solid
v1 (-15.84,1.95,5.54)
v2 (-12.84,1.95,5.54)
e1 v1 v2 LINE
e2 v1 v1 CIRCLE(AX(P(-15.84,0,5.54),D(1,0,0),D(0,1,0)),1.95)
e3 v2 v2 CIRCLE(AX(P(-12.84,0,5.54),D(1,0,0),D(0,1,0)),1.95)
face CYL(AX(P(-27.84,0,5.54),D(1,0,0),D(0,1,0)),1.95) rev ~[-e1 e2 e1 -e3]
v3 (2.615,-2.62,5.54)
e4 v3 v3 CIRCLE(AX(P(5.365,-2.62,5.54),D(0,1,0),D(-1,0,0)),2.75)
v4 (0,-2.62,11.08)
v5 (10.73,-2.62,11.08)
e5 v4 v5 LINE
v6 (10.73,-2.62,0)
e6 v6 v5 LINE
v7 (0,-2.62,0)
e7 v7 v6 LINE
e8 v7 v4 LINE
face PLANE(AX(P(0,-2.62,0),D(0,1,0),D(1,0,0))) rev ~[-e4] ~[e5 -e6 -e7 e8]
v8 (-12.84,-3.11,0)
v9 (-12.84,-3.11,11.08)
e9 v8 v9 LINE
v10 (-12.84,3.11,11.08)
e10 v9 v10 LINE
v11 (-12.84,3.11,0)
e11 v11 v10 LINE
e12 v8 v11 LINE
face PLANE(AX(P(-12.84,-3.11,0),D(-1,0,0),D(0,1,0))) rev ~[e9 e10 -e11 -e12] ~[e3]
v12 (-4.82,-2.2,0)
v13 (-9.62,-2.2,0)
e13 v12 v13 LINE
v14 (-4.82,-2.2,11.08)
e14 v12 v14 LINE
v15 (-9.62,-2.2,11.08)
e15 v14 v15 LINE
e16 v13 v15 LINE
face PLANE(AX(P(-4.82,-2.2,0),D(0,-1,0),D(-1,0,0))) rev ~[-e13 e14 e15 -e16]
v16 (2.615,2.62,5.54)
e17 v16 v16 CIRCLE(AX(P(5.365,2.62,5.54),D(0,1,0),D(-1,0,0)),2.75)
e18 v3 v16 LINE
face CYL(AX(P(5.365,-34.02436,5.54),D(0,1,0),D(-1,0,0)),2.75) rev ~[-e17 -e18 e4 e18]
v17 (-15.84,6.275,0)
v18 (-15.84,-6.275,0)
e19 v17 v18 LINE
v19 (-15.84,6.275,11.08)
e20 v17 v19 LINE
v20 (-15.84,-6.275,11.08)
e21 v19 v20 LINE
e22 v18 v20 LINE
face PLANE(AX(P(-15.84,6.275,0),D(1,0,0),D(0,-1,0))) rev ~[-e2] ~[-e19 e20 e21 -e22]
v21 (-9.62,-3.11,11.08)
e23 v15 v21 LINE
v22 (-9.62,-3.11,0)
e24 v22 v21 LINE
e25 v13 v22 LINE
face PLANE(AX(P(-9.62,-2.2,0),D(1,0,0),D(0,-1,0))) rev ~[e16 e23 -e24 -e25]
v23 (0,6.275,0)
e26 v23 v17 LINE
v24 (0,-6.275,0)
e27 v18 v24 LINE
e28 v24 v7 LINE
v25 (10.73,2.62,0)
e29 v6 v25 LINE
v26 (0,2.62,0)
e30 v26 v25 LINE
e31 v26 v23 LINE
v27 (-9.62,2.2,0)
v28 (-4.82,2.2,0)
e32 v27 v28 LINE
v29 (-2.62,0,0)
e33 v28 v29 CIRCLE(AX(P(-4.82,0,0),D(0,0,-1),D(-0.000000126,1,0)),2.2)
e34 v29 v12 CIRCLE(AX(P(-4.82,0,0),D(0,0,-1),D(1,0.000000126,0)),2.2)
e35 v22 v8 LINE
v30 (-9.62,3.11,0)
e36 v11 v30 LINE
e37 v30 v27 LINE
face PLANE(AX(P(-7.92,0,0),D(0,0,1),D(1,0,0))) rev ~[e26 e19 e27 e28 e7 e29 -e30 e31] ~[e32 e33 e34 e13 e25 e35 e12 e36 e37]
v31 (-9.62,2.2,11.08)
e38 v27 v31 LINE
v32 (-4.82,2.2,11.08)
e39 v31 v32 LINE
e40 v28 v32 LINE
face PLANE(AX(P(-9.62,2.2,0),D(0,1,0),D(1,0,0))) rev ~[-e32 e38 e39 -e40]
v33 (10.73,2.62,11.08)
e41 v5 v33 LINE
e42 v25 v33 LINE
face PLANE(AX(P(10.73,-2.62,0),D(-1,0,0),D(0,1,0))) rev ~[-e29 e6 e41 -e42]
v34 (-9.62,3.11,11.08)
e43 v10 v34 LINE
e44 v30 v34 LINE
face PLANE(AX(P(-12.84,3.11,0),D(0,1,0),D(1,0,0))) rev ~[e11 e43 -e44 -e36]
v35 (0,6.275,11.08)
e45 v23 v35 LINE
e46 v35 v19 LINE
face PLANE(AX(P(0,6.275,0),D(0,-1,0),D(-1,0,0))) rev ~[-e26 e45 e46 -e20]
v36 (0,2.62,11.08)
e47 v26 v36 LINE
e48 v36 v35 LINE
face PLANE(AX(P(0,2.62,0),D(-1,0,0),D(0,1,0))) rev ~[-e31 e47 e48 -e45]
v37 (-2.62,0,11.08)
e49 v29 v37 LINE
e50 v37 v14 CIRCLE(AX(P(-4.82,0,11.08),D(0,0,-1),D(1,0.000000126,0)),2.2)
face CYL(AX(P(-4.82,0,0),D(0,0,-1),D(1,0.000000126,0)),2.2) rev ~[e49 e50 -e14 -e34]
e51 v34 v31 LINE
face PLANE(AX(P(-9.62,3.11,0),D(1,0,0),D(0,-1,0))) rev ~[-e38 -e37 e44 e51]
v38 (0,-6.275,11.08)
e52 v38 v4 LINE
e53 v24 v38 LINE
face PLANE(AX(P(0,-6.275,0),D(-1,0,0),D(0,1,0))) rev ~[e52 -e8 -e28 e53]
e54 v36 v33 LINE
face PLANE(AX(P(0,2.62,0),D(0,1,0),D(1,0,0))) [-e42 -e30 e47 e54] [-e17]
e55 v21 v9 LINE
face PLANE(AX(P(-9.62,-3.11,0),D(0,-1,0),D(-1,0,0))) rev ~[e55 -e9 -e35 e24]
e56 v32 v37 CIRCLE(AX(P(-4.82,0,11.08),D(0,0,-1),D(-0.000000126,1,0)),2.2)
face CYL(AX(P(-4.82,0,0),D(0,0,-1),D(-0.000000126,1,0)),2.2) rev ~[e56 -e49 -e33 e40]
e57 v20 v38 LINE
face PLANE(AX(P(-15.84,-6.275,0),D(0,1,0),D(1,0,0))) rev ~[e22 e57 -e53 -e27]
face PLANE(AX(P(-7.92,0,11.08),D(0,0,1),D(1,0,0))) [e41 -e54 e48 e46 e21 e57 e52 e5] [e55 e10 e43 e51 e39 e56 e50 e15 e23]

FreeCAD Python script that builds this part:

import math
import FreeCAD as App
import Part
import Sketcher

V = App.Vector

doc = App.newDocument("Part")
body = doc.addObject("PartDesign::Body", "Body")

sketch1 = doc.addObject("Sketcher::SketchObject", "Sketch")
body.addObject(sketch1)
sketch1.AttachmentSupport = (doc.XY_Plane, [""])
sketch1.MapMode = "FlatFace"
sketch1.addGeometry([
    Part.LineSegment(V(0, 6.3, 0), V(-15.8, 6.3, 0)),
    Part.LineSegment(V(-15.8, 6.3, 0), V(-15.8, -6.3, 0)),
    Part.LineSegment(V(-15.8, -6.3, 0), V(0, -6.3, 0)),
    Part.LineSegment(V(0, -6.3, 0), V(0, -2.6, 0)),
    Part.LineSegment(V(0, -2.6, 0), V(10.7, -2.6, 0)),
    Part.LineSegment(V(10.7, -2.6, 0), V(10.7, 2.6, 0)),
    Part.LineSegment(V(10.7, 2.6, 0), V(0, 2.6, 0)),
    Part.LineSegment(V(0, 2.6, 0), V(0, 6.3, 0)),
    Part.LineSegment(V(-9.6, -3.1, 0), V(-12.8, -3.1, 0)),
    Part.LineSegment(V(-12.8, -3.1, 0), V(-12.8, 3.1, 0)),
    Part.LineSegment(V(-12.8, 3.1, 0), V(-9.6, 3.1, 0)),
    Part.LineSegment(V(-9.6, 3.1, 0), V(-9.6, 2.2, 0)),
    Part.LineSegment(V(-9.6, 2.2, 0), V(-4.8, 2.2, 0)),
    Part.ArcOfCircle(Part.Circle(V(-4.8, 0, 0), V(0, 0, 1), 2.2), math.radians(0), math.radians(90)),
    Part.ArcOfCircle(Part.Circle(V(-4.8, 0, 0), V(0, 0, 1), 2.2), math.radians(-90), math.radians(0)),
    Part.LineSegment(V(-4.8, -2.2, 0), V(-9.6, -2.2, 0)),
    Part.LineSegment(V(-9.6, -2.2, 0), V(-9.6, -3.1, 0)),
], False)
sketch1.addConstraint([
    Sketcher.Constraint("Coincident", 0, 2, 1, 1),
    Sketcher.Constraint("Coincident", 1, 2, 2, 1),
    Sketcher.Constraint("Coincident", 2, 2, 3, 1),
    Sketcher.Constraint("Coincident", 3, 2, 4, 1),
    Sketcher.Constraint("Coincident", 4, 2, 5, 1),
    Sketcher.Constraint("Coincident", 5, 2, 6, 1),
    Sketcher.Constraint("Coincident", 6, 2, 7, 1),
    Sketcher.Constraint("Coincident", 7, 2, 0, 1),
    Sketcher.Constraint("Coincident", 8, 2, 9, 1),
    Sketcher.Constraint("Coincident", 9, 2, 10, 1),
    Sketcher.Constraint("Coincident", 10, 2, 11, 1),
    Sketcher.Constraint("Coincident", 11, 2, 12, 1),
    Sketcher.Constraint("Tangent", 12, 2, 13, 2),
    Sketcher.Constraint("Tangent", 13, 1, 14, 2),
    Sketcher.Constraint("Tangent", 14, 1, 15, 1),
    Sketcher.Constraint("Coincident", 15, 2, 16, 1),
    Sketcher.Constraint("Coincident", 16, 2, 8, 1),
    Sketcher.Constraint("Horizontal", 0),
    Sketcher.Constraint("Vertical", 1),
    Sketcher.Constraint("Horizontal", 2),
    Sketcher.Constraint("Vertical", 3),
    Sketcher.Constraint("Horizontal", 4),
    Sketcher.Constraint("Vertical", 5),
    Sketcher.Constraint("Horizontal", 6),
    Sketcher.Constraint("Vertical", 7),
    Sketcher.Constraint("Horizontal", 8),
    Sketcher.Constraint("Vertical", 9),
    Sketcher.Constraint("Horizontal", 10),
    Sketcher.Constraint("Vertical", 11),
    Sketcher.Constraint("Horizontal", 12),
    Sketcher.Constraint("Horizontal", 15),
    Sketcher.Constraint("Vertical", 16),
    Sketcher.Constraint("Equal", 13, 14),
    Sketcher.Constraint("Symmetric", 3, 2, 6, 2, -1, 1),
    Sketcher.Constraint("Symmetric", 2, 2, 7, 2, -1),
    Sketcher.Constraint("Symmetric", 11, 2, 15, 2, -1),
    Sketcher.Constraint("PointOnObject", 13, 1, -1),
    Sketcher.Constraint("Equal", 11, 16),
    Sketcher.Constraint("Radius", 13, 2.2),
    Sketcher.Constraint("DistanceX", 12, 1, 12, 2, 4.8),
    Sketcher.Constraint("DistanceX", 1, 2, 8, 2, 3.0),
    Sketcher.Constraint("DistanceX", 0, 2, 0, 1, 15.84),
    Sketcher.Constraint("DistanceX", 4, 1, 4, 2, 10.73),
    Sketcher.Constraint("DistanceX", 8, 2, 8, 1, 3.22),
    Sketcher.Constraint("DistanceY", 1, 2, 1, 1, 12.55),
    Sketcher.Constraint("DistanceY", 5, 1, 5, 2, 5.24),
    Sketcher.Constraint("DistanceY", 9, 1, 9, 2, 6.22),
])
pad1 = doc.addObject("PartDesign::Pad", "Pad")
body.addObject(pad1)
pad1.Profile = sketch1
pad1.Length = 11.08

sketch2 = doc.addObject("Sketcher::SketchObject", "Sketch001")
body.addObject(sketch2)
sketch2.AttachmentSupport = (doc.YZ_Plane, [""])
sketch2.MapMode = "FlatFace"
sketch2.AttachmentOffset = App.Placement(V(0, 0, -15.84), App.Rotation())
sketch2.addGeometry(Part.Circle(V(0, 5.5, 0), V(0, 0, 1), 1.9), False)
sketch2.addConstraint([
    Sketcher.Constraint("PointOnObject", 0, 3, -2),
    Sketcher.Constraint("Diameter", 0, 3.9),
    Sketcher.Constraint("DistanceY", -1, 1, 0, 3, 5.54),
])
doc.recompute()
hole = doc.addObject("PartDesign::Hole", "Hole")
body.addObject(hole)
hole.Profile = sketch2
hole.ThreadType = "None"
hole.Diameter = 3.9
hole.DepthType = "Dimension"
hole.Depth = 12
hole.DrillPoint = "Flat"
hole.Reversed = True

sketch3 = doc.addObject("Sketcher::SketchObject", "Sketch002")
body.addObject(sketch3)
sketch3.AttachmentSupport = (doc.XZ_Plane, [""])
sketch3.MapMode = "FlatFace"
sketch3.AttachmentOffset = App.Placement(V(0, 0, 2.62), App.Rotation())
sketch3.addGeometry(Part.Circle(V(5.4, 5.5, 0), V(0, 0, 1), 2.8), False)
sketch3.addConstraint([
    Sketcher.Constraint("Diameter", 0, 5.5),
    Sketcher.Constraint("DistanceY", -1, 1, 0, 3, 5.54),
    Sketcher.Constraint("DistanceX", -1, 1, 0, 3, 5.365),
])
doc.recompute()
hole2 = doc.addObject("PartDesign::Hole", "Hole001")
body.addObject(hole2)
hole2.Profile = sketch3
hole2.ThreadType = "None"
hole2.Diameter = 5.5
hole2.DepthType = "ThroughAll"

doc.recompute()
